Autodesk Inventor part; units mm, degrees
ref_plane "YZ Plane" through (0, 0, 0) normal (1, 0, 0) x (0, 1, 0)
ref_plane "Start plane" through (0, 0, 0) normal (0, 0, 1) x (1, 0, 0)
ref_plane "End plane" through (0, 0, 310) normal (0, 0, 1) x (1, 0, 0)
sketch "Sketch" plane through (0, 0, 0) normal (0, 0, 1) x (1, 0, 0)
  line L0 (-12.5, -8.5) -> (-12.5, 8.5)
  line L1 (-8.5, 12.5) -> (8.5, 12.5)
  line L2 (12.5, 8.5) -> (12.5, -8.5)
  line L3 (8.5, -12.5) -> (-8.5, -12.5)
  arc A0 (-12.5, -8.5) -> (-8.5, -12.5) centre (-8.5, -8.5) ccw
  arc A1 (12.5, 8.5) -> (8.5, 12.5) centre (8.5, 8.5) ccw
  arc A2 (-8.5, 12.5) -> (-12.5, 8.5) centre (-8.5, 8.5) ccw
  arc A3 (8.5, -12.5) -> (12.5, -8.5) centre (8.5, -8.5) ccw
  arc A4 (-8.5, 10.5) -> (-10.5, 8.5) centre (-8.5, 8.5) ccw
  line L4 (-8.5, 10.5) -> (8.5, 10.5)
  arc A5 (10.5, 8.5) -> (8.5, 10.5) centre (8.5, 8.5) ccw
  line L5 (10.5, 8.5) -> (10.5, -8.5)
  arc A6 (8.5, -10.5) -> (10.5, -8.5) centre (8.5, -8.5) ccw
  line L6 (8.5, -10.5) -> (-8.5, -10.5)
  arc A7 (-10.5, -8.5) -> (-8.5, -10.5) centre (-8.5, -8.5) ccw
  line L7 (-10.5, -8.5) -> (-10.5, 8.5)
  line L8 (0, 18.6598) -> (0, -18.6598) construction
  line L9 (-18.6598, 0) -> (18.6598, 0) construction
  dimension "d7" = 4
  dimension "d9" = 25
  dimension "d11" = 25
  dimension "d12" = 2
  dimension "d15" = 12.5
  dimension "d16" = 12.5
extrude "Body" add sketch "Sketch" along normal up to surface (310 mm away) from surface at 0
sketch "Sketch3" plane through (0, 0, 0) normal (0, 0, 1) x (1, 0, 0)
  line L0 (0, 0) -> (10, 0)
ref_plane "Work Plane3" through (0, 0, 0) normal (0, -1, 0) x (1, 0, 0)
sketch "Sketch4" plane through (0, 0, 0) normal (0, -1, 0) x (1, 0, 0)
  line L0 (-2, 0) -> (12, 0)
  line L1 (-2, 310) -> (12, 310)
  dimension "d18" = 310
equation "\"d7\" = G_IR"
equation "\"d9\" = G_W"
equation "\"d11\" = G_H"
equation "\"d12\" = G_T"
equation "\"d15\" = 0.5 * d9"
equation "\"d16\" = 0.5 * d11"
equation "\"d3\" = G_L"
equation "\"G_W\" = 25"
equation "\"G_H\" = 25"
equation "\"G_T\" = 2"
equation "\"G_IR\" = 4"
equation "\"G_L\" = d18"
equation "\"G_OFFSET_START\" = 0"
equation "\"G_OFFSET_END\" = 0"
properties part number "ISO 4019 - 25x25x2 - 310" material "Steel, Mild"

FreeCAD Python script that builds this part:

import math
import FreeCAD as App
import Part
import Sketcher

V = App.Vector

doc = App.newDocument("Part")
body = doc.addObject("PartDesign::Body", "Body")

sketch1 = body.newObject("Sketcher::SketchObject", "Sketch")
sketch1.AttachmentSupport = (doc.getObject("XY_Plane"), [""])
sketch1.MapMode = "FlatFace"
sketch1.addGeometry(Part.LineSegment(V(-12.5, 8.5, 0), V(-12.5, -8.5, 0)), False)
sketch1.addGeometry(Part.ArcOfCircle(Part.Circle(V(-8.5, -8.5, 0), V(0, 0, 1), 4), math.radians(180), math.radians(270)), False)
sketch1.addGeometry(Part.LineSegment(V(-8.5, -12.5, 0), V(8.5, -12.5, 0)), False)
sketch1.addGeometry(Part.ArcOfCircle(Part.Circle(V(8.5, -8.5, 0), V(0, 0, 1), 4), math.radians(-90), math.radians(0)), False)
sketch1.addGeometry(Part.LineSegment(V(12.5, -8.5, 0), V(12.5, 8.5, 0)), False)
sketch1.addGeometry(Part.ArcOfCircle(Part.Circle(V(8.5, 8.5, 0), V(0, 0, 1), 4), math.radians(0), math.radians(90)), False)
sketch1.addGeometry(Part.LineSegment(V(8.5, 12.5, 0), V(-8.5, 12.5, 0)), False)
sketch1.addGeometry(Part.ArcOfCircle(Part.Circle(V(-8.5, 8.5, 0), V(0, 0, 1), 4), math.radians(90), math.radians(180)), False)
sketch1.addGeometry(Part.ArcOfCircle(Part.Circle(V(-8.5, 8.5, 0), V(0, 0, 1), 2), math.radians(90), math.radians(180)), False)
sketch1.addGeometry(Part.LineSegment(V(-8.5, 10.5, 0), V(8.5, 10.5, 0)), False)
sketch1.addGeometry(Part.ArcOfCircle(Part.Circle(V(8.5, 8.5, 0), V(0, 0, 1), 2), math.radians(0), math.radians(90)), False)
sketch1.addGeometry(Part.LineSegment(V(10.5, 8.5, 0), V(10.5, -8.5, 0)), False)
sketch1.addGeometry(Part.ArcOfCircle(Part.Circle(V(8.5, -8.5, 0), V(0, 0, 1), 2), math.radians(-90), math.radians(0)), False)
sketch1.addGeometry(Part.LineSegment(V(8.5, -10.5, 0), V(-8.5, -10.5, 0)), False)
sketch1.addGeometry(Part.ArcOfCircle(Part.Circle(V(-8.5, -8.5, 0), V(0, 0, 1), 2), math.radians(180), math.radians(270)), False)
sketch1.addGeometry(Part.LineSegment(V(-10.5, -8.5, 0), V(-10.5, 8.5, 0)), False)
sketch1.addConstraint(Sketcher.Constraint("Tangent", 0, 2, 1, 1))
sketch1.addConstraint(Sketcher.Constraint("Tangent", 1, 2, 2, 1))
sketch1.addConstraint(Sketcher.Constraint("Tangent", 2, 2, 3, 1))
sketch1.addConstraint(Sketcher.Constraint("Tangent", 3, 2, 4, 1))
sketch1.addConstraint(Sketcher.Constraint("Tangent", 4, 2, 5, 1))
sketch1.addConstraint(Sketcher.Constraint("Tangent", 5, 2, 6, 1))
sketch1.addConstraint(Sketcher.Constraint("Tangent", 6, 2, 7, 1))
sketch1.addConstraint(Sketcher.Constraint("Tangent", 7, 2, 0, 1))
sketch1.addConstraint(Sketcher.Constraint("Tangent", 8, 1, 9, 1))
sketch1.addConstraint(Sketcher.Constraint("Tangent", 9, 2, 10, 2))
sketch1.addConstraint(Sketcher.Constraint("Tangent", 10, 1, 11, 1))
sketch1.addConstraint(Sketcher.Constraint("Tangent", 11, 2, 12, 2))
sketch1.addConstraint(Sketcher.Constraint("Tangent", 12, 1, 13, 1))
sketch1.addConstraint(Sketcher.Constraint("Tangent", 13, 2, 14, 2))
sketch1.addConstraint(Sketcher.Constraint("Tangent", 14, 1, 15, 1))
sketch1.addConstraint(Sketcher.Constraint("Tangent", 15, 2, 8, 2))
sketch1.addConstraint(Sketcher.Constraint("Vertical", 0))
sketch1.addConstraint(Sketcher.Constraint("Horizontal", 2))
sketch1.addConstraint(Sketcher.Constraint("Vertical", 4))
sketch1.addConstraint(Sketcher.Constraint("Horizontal", 6))
sketch1.addConstraint(Sketcher.Constraint("Horizontal", 9))
sketch1.addConstraint(Sketcher.Constraint("Vertical", 11))
sketch1.addConstraint(Sketcher.Constraint("Horizontal", 13))
sketch1.addConstraint(Sketcher.Constraint("Vertical", 15))
sketch1.addConstraint(Sketcher.Constraint("Coincident", 8, 3, 7, 3))
sketch1.addConstraint(Sketcher.Constraint("Coincident", 10, 3, 5, 3))
sketch1.addConstraint(Sketcher.Constraint("Coincident", 12, 3, 3, 3))
sketch1.addConstraint(Sketcher.Constraint("Equal", 1, 3))
sketch1.addConstraint(Sketcher.Constraint("Equal", 3, 5))
sketch1.addConstraint(Sketcher.Constraint("Equal", 5, 7))
sketch1.addConstraint(Sketcher.Constraint("Equal", 12, 14))
sketch1.addConstraint(Sketcher.Constraint("Symmetric", 1, 3, 5, 3, -1, 1))
sketch1.addConstraint(Sketcher.Constraint("Equal", 13, 0))
sketch1.addConstraint(Sketcher.Constraint("Radius", 1, 4.0))
sketch1.addConstraint(Sketcher.Constraint("Radius", 8, 2.0))
sketch1.addConstraint(Sketcher.Constraint("DistanceX", 0, 2, -1, 1, 12.5))
pad1 = body.newObject("PartDesign::Pad", "Pad")
pad1.Profile = sketch1
pad1.Length = 310

doc.recompute()
